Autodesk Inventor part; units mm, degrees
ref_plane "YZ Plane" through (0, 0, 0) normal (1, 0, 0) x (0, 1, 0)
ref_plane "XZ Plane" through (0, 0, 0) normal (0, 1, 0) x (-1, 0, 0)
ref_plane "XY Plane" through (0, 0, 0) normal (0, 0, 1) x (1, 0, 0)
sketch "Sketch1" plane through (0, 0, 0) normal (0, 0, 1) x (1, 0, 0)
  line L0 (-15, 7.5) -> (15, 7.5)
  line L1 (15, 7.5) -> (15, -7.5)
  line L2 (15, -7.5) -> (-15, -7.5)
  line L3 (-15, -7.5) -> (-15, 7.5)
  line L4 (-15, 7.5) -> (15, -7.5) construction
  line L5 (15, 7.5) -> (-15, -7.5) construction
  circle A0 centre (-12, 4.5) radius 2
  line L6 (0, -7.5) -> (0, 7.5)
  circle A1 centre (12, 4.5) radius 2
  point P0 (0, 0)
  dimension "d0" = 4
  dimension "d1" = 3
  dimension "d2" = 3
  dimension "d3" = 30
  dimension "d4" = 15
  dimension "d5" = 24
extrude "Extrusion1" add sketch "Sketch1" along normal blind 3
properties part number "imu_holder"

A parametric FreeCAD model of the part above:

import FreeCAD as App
import Part
import Sketcher

V = App.Vector

doc = App.newDocument("Part")
body = doc.addObject("PartDesign::Body", "Body")

# Sketch on XY plane
sketch1 = body.newObject("Sketcher::SketchObject", "Sketch")
sketch1.AttachmentSupport = (doc.getObject("XY_Plane"), [""])
sketch1.MapMode = "FlatFace"
sketch1.addGeometry(Part.LineSegment(V(-15, 7.5, 0), V(-15, -7.5, 0)), False)
sketch1.addGeometry(Part.LineSegment(V(-15, -7.5, 0), V(15, -7.5, 0)), False)
sketch1.addGeometry(Part.LineSegment(V(15, -7.5, 0), V(15, 7.5, 0)), False)
sketch1.addGeometry(Part.LineSegment(V(15, 7.5, 0), V(-15, 7.5, 0)), False)
sketch1.addGeometry(Part.Circle(V(-12, 4.5, 0), V(0, 0, 1), 2), False)
sketch1.addGeometry(Part.Circle(V(12, 4.5, 0), V(0, 0, 1), 2), False)
sketch1.addConstraint(Sketcher.Constraint("Coincident", 0, 2, 1, 1))
sketch1.addConstraint(Sketcher.Constraint("Coincident", 1, 2, 2, 1))
sketch1.addConstraint(Sketcher.Constraint("Coincident", 2, 2, 3, 1))
sketch1.addConstraint(Sketcher.Constraint("Coincident", 3, 2, 0, 1))
sketch1.addConstraint(Sketcher.Constraint("Vertical", 0))
sketch1.addConstraint(Sketcher.Constraint("Horizontal", 1))
sketch1.addConstraint(Sketcher.Constraint("Vertical", 2))
sketch1.addConstraint(Sketcher.Constraint("Horizontal", 3))
sketch1.addConstraint(Sketcher.Constraint("Equal", 4, 5))
sketch1.addConstraint(Sketcher.Constraint("Symmetric", 0, 2, 2, 2, -1, 1))
sketch1.addConstraint(Sketcher.Constraint("Symmetric", 4, 3, 5, 3, -2))
sketch1.addConstraint(Sketcher.Constraint("Diameter", 4, 4.0))
sketch1.addConstraint(Sketcher.Constraint("DistanceX", 1, 1, 1, 2, 30.0))
sketch1.addConstraint(Sketcher.Constraint("DistanceY", 0, 2, 0, 1, 15.0))
sketch1.addConstraint(Sketcher.Constraint("DistanceX", 4, 3, 5, 3, 24.0))
sketch1.addConstraint(Sketcher.Constraint("DistanceY", 5, 3, 2, 2, 3.0))
pad1 = body.newObject("PartDesign::Pad", "Pad")
pad1.Profile = sketch1
pad1.Length = 3

doc.recompute()
